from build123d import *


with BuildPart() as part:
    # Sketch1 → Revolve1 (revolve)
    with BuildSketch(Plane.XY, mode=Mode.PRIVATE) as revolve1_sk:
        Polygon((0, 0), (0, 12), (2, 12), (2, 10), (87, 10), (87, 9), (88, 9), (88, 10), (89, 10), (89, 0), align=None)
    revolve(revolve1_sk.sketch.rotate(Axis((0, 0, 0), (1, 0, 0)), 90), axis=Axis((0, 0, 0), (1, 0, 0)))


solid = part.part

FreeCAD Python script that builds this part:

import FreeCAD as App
import Part
import Sketcher
from FreeCAD import Vector

doc = App.newDocument("Part")
body = doc.addObject("PartDesign::Body", "Body")

sketch1 = body.newObject("Sketcher::SketchObject", "Sketch")
sketch1.AttachmentSupport = (doc.getObject("XY_Plane"), [""])
sketch1.MapMode = "FlatFace"
sketch1.addGeometry(Part.LineSegment(Vector(0, 12, 0), Vector(0, 0, 0)), False)
sketch1.addGeometry(Part.LineSegment(Vector(0, 0, 0), Vector(89, 0, 0)), False)
sketch1.addGeometry(Part.LineSegment(Vector(89, 0, 0), Vector(89, 10, 0)), False)
sketch1.addGeometry(Part.LineSegment(Vector(89, 10, 0), Vector(88, 10, 0)), False)
sketch1.addGeometry(Part.LineSegment(Vector(88, 10, 0), Vector(88, 9, 0)), False)
sketch1.addGeometry(Part.LineSegment(Vector(88, 9, 0), Vector(87, 9, 0)), False)
sketch1.addGeometry(Part.LineSegment(Vector(87, 9, 0), Vector(87, 10, 0)), False)
sketch1.addGeometry(Part.LineSegment(Vector(87, 10, 0), Vector(2, 10, 0)), False)
sketch1.addGeometry(Part.LineSegment(Vector(2, 10, 0), Vector(2, 12, 0)), False)
sketch1.addGeometry(Part.LineSegment(Vector(2, 12, 0), Vector(0, 12, 0)), False)
sketch1.addConstraint(Sketcher.Constraint("Coincident", 0, 2, 1, 1))
sketch1.addConstraint(Sketcher.Constraint("Coincident", 1, 2, 2, 1))
sketch1.addConstraint(Sketcher.Constraint("Coincident", 2, 2, 3, 1))
sketch1.addConstraint(Sketcher.Constraint("Coincident", 3, 2, 4, 1))
sketch1.addConstraint(Sketcher.Constraint("Coincident", 4, 2, 5, 1))
sketch1.addConstraint(Sketcher.Constraint("Coincident", 5, 2, 6, 1))
sketch1.addConstraint(Sketcher.Constraint("Coincident", 6, 2, 7, 1))
sketch1.addConstraint(Sketcher.Constraint("Coincident", 7, 2, 8, 1))
sketch1.addConstraint(Sketcher.Constraint("Coincident", 8, 2, 9, 1))
sketch1.addConstraint(Sketcher.Constraint("Coincident", 9, 2, 0, 1))
sketch1.addConstraint(Sketcher.Constraint("Vertical", 0))
sketch1.addConstraint(Sketcher.Constraint("Horizontal", 1))
sketch1.addConstraint(Sketcher.Constraint("Vertical", 2))
sketch1.addConstraint(Sketcher.Constraint("Horizontal", 3))
sketch1.addConstraint(Sketcher.Constraint("Vertical", 4))
sketch1.addConstraint(Sketcher.Constraint("Horizontal", 5))
sketch1.addConstraint(Sketcher.Constraint("Vertical", 6))
sketch1.addConstraint(Sketcher.Constraint("Horizontal", 7))
sketch1.addConstraint(Sketcher.Constraint("Vertical", 8))
sketch1.addConstraint(Sketcher.Constraint("Horizontal", 9))
sketch1.addConstraint(Sketcher.Constraint("Coincident", 0, 2, -1, 1))
sketch1.addConstraint(Sketcher.Constraint("Horizontal", 3, 2, 6, 2))
sketch1.addConstraint(Sketcher.Constraint("Equal", 3, 5))
sketch1.addConstraint(Sketcher.Constraint("Equal", 5, 4))
sketch1.addConstraint(Sketcher.Constraint("Equal", 9, 8))
sketch1.addConstraint(Sketcher.Constraint("DistanceX", 1, 1, 1, 2, 89.0))
sketch1.addConstraint(Sketcher.Constraint("DistanceX", 3, 2, 3, 1, 1.0))
sketch1.addConstraint(Sketcher.Constraint("DistanceX", 7, 2, 7, 1, 85.0))
sketch1.addConstraint(Sketcher.Constraint("DistanceY", 0, 2, 0, 1, 12.0))
revolution = body.newObject("PartDesign::Revolution", "Revolution")
revolution.Profile = sketch1
revolution.ReferenceAxis = (sketch1, ["H_Axis"])
revolution.Angle = 360

doc.recompute()
